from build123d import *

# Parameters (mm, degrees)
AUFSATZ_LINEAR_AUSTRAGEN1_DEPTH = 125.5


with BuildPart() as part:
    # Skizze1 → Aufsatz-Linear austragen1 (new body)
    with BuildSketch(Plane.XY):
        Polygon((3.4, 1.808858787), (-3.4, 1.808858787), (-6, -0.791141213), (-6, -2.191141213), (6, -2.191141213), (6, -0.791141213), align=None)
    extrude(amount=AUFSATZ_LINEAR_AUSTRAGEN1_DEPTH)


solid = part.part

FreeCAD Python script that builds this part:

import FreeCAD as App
import Part
import Sketcher
from FreeCAD import Vector
Q = App.Units.Quantity

doc = App.newDocument("Part")
params = doc.addObject("Spreadsheet::Sheet", "Params")
for row, (alias, value) in enumerate([
    ("sketch1_width", "12 mm"),
    ("sketch1_width2", "6.8 mm"),
    ("sketch1_height", "1.4 mm"),
    ("pad1_length", "125.5 mm"),
], start=1):
    params.set(f"A{row}", alias)
    params.set(f"B{row}", "=" + value)
    params.setAlias(f"B{row}", alias)

body = doc.addObject("PartDesign::Body", "Body")

sketch1 = doc.addObject("Sketcher::SketchObject", "Sketch")
body.addObject(sketch1)
sketch1.AttachmentSupport = (doc.XY_Plane, [""])
sketch1.MapMode = "FlatFace"
sketch1.addGeometry([
    Part.LineSegment(Vector(3.4, 1.8, 0), Vector(-3.4, 1.8, 0)),
    Part.LineSegment(Vector(-3.4, 1.8, 0), Vector(-6, -0.8, 0)),
    Part.LineSegment(Vector(-6, -0.8, 0), Vector(-6, -2.2, 0)),
    Part.LineSegment(Vector(-6, -2.2, 0), Vector(6, -2.2, 0)),
    Part.LineSegment(Vector(6, -2.2, 0), Vector(6, -0.8, 0)),
    Part.LineSegment(Vector(6, -0.8, 0), Vector(3.4, 1.8, 0)),
], False)
sketch1.addConstraint([
    Sketcher.Constraint("Coincident", 0, 2, 1, 1),
    Sketcher.Constraint("Coincident", 1, 2, 2, 1),
    Sketcher.Constraint("Coincident", 2, 2, 3, 1),
    Sketcher.Constraint("Coincident", 3, 2, 4, 1),
    Sketcher.Constraint("Coincident", 4, 2, 5, 1),
    Sketcher.Constraint("Coincident", 5, 2, 0, 1),
    Sketcher.Constraint("Horizontal", 0),
    Sketcher.Constraint("Vertical", 2),
    Sketcher.Constraint("Horizontal", 3),
    Sketcher.Constraint("Vertical", 4),
    Sketcher.Constraint("Symmetric", 1, 2, 4, 2, -2),
    Sketcher.Constraint("Perpendicular", 1, 5),
    Sketcher.Constraint("Equal", 1, 5),
    Sketcher.Constraint("DistanceX", 3, 1, 3, 2, Q("12 mm")),
    Sketcher.Constraint("DistanceX", 0, 2, 0, 1, Q("6.8 mm")),
    Sketcher.Constraint("DistanceY", 2, 2, 2, 1, Q("1.4 mm")),
    Sketcher.Constraint("DistanceY", -1, 1, 0, 2, Q("1.808859 mm")),
])
sketch1.setExpression("Constraints[13]", "Params.sketch1_width")
sketch1.setExpression("Constraints[14]", "Params.sketch1_width2")
sketch1.setExpression("Constraints[15]", "Params.sketch1_height")
pad1 = doc.addObject("PartDesign::Pad", "Pad")
body.addObject(pad1)
pad1.Profile = sketch1
pad1.setExpression("Length", "Params.pad1_length")

doc.recompute()
